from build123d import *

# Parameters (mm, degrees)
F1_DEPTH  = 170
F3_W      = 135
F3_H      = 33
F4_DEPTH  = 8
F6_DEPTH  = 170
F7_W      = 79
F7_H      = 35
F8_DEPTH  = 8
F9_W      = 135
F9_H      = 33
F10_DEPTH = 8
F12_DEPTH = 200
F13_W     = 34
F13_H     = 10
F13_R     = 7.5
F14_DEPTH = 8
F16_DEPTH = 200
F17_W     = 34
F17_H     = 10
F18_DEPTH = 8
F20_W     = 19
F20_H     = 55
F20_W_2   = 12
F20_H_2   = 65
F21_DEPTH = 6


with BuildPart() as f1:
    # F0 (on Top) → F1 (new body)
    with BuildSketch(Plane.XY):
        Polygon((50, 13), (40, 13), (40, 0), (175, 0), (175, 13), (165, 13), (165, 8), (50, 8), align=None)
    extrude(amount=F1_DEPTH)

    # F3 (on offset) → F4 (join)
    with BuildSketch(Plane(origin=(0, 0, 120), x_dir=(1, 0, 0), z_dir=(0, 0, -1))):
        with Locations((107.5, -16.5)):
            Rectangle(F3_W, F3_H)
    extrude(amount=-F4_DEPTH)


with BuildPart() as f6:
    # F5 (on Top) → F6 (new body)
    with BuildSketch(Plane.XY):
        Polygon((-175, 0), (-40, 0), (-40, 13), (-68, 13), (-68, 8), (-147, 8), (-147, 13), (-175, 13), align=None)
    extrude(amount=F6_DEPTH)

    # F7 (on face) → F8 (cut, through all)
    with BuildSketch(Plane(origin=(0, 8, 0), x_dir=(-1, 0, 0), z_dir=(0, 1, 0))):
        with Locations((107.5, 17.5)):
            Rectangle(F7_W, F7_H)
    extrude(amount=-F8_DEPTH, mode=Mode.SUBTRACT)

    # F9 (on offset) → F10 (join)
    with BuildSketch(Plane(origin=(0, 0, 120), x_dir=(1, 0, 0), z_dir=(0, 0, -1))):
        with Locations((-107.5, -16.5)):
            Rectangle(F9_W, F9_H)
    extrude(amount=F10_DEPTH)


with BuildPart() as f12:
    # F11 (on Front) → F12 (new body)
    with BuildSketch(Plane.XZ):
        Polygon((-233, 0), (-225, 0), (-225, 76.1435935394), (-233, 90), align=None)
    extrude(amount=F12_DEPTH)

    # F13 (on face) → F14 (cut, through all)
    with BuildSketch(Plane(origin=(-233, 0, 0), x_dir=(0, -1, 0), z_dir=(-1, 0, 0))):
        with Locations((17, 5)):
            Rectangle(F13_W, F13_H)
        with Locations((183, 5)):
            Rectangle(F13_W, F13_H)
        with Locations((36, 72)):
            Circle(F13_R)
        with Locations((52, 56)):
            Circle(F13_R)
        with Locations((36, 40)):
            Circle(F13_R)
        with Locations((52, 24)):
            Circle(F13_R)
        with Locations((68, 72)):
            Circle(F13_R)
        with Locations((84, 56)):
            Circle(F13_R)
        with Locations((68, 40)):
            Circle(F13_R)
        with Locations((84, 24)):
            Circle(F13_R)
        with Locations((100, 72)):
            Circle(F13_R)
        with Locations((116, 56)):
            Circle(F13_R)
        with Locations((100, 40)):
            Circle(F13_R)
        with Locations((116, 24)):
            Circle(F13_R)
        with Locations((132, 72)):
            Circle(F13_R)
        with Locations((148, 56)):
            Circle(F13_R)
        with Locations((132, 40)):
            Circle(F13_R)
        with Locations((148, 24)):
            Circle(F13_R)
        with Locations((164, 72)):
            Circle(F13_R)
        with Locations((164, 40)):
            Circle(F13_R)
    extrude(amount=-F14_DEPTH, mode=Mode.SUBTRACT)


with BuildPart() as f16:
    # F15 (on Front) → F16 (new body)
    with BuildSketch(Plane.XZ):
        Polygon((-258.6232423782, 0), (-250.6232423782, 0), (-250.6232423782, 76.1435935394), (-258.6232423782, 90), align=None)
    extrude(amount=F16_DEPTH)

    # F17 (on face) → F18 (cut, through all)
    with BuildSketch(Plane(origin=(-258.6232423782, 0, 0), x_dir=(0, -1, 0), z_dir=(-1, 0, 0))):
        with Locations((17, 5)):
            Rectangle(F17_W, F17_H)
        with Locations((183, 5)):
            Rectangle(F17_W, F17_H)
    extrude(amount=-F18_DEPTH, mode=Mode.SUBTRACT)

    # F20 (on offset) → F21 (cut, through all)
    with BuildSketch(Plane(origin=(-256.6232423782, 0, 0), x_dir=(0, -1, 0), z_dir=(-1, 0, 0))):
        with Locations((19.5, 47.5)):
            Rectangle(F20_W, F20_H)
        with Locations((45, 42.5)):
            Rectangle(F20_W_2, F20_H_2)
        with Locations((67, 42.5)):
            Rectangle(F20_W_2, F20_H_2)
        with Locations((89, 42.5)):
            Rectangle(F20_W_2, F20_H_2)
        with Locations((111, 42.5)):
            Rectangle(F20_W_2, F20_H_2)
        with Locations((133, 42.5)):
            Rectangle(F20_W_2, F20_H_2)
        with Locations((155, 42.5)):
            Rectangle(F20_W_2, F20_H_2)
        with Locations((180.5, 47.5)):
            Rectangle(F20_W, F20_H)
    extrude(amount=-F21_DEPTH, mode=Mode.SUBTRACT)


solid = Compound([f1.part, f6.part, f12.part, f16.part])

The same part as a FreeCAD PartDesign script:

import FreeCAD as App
import Part
import Sketcher
Q = App.Units.Quantity


def add_polygon(sketch, points):
    """Adds a closed chain of lines whose ends are joined by coincident constraints."""
    first, n = sketch.GeometryCount, len(points)
    for a, b in zip(points, points[1:] + points[:1]):
        sketch.addGeometry(Part.LineSegment(App.Vector(*a, 0), App.Vector(*b, 0)), False)
    for i in range(n):
        sketch.addConstraint(Sketcher.Constraint("Coincident", first + i, 2, first + (i + 1) % n, 1))

doc = App.newDocument("Part")
body = doc.addObject("PartDesign::Body", "Body")

sketch1 = body.newObject("Sketcher::SketchObject", "Sketch")
sketch1.AttachmentSupport = (doc.getObject("XY_Plane"), [""])
sketch1.MapMode = "FlatFace"
add_polygon(sketch1, [(50, 13), (40, 13), (40, 0), (175, 0), (175, 13), (165, 13), (165, 8), (50, 8)])
sketch1.addConstraint([
    Sketcher.Constraint("Horizontal", 0),
    Sketcher.Constraint("Vertical", 1),
    Sketcher.Constraint("Horizontal", 2),
    Sketcher.Constraint("Vertical", 3),
    Sketcher.Constraint("Horizontal", 4),
    Sketcher.Constraint("Vertical", 5),
    Sketcher.Constraint("Horizontal", 6),
    Sketcher.Constraint("Vertical", 7),
    Sketcher.Constraint("PointOnObject", 1, 2, -1),
    Sketcher.Constraint("Horizontal", 0, 2, 3, 2),
    Sketcher.Constraint("Equal", 0, 4),
    Sketcher.Constraint("DistanceX", 0, 2, 0, 1, 10.0),
    Sketcher.Constraint("DistanceX", 2, 1, 2, 2, 135.0),
    Sketcher.Constraint("DistanceY", 1, 2, 1, 1, 13.0),
    Sketcher.Constraint("DistanceY", 5, 2, 5, 1, 5.0),
    Sketcher.Constraint("DistanceX", -1, 1, 0, 2, 40.0),
])
pad1 = body.newObject("PartDesign::Pad", "Pad")
pad1.Profile = sketch1
pad1.Length = 170

sketch2 = body.newObject("Sketcher::SketchObject", "Sketch001")
sketch2.AttachmentSupport = (doc.getObject("XY_Plane"), [""])
sketch2.MapMode = "FlatFace"
sketch2.AttachmentOffset = App.Placement(App.Vector(0, 0, 120), App.Rotation())
add_polygon(sketch2, [(40, 0), (40, 33), (175, 33), (175, 0)])
sketch2.addConstraint([
    Sketcher.Constraint("Vertical", 0),
    Sketcher.Constraint("Horizontal", 1),
    Sketcher.Constraint("Vertical", 2),
    Sketcher.Constraint("Horizontal", 3),
    Sketcher.Constraint("PointOnObject", 2, 2, -1),
    Sketcher.Constraint("DistanceX", 1, 1, 1, 2, 135.0),
    Sketcher.Constraint("DistanceY", 0, 1, 0, 2, 33.0),
    Sketcher.Constraint("DistanceX", -1, 1, 0, 2, 40.0),
])
pad2 = body.newObject("PartDesign::Pad", "Pad001")
pad2.Profile = sketch2
pad2.Length = 8
body2 = doc.addObject("PartDesign::Body", "Body001")

sketch3 = body2.newObject("Sketcher::SketchObject", "Sketch002")
sketch3.AttachmentSupport = (doc.getObject("XY_Plane001"), [""])
sketch3.MapMode = "FlatFace"
add_polygon(sketch3, [(-175, 0), (-40, 0), (-40, 13), (-68, 13), (-68, 8), (-147, 8), (-147, 13), (-175, 13)])
sketch3.addConstraint([
    Sketcher.Constraint("Horizontal", 0),
    Sketcher.Constraint("Vertical", 1),
    Sketcher.Constraint("Horizontal", 2),
    Sketcher.Constraint("Vertical", 3),
    Sketcher.Constraint("Horizontal", 4),
    Sketcher.Constraint("Vertical", 5),
    Sketcher.Constraint("Horizontal", 6),
    Sketcher.Constraint("Vertical", 7),
    Sketcher.Constraint("PointOnObject", 0, 2, -1),
    Sketcher.Constraint("Horizontal", 2, 2, 5, 2),
    Sketcher.Constraint("Equal", 2, 6),
    Sketcher.Constraint("DistanceX", 0, 1, 0, 2, 135.0),
    Sketcher.Constraint("DistanceX", 2, 2, 2, 1, 28.0),
    Sketcher.Constraint("DistanceY", 1, 1, 1, 2, 13.0),
    Sketcher.Constraint("DistanceY", 3, 2, 3, 1, 5.0),
    Sketcher.Constraint("DistanceX", 0, 2, -1, 1, 40.0),
])
pad3 = body2.newObject("PartDesign::Pad", "Pad002")
pad3.Profile = sketch3
pad3.Length = 170

sketch4 = body2.newObject("Sketcher::SketchObject", "Sketch003")
sketch4.AttachmentSupport = (doc.getObject("XZ_Plane001"), [""])
sketch4.MapMode = "FlatFace"
sketch4.AttachmentOffset = App.Placement(App.Vector(0, 0, -8), App.Rotation())
add_polygon(sketch4, [(-68, 35), (-68, 0), (-147, 0), (-147, 35)])
sketch4.addConstraint([
    Sketcher.Constraint("Vertical", 0),
    Sketcher.Constraint("Horizontal", 1),
    Sketcher.Constraint("Vertical", 2),
    Sketcher.Constraint("Horizontal", 3),
    Sketcher.Constraint("PointOnObject", 0, 2, -1),
    Sketcher.Constraint("DistanceX", 1, 2, 1, 1, 79.0),
    Sketcher.Constraint("DistanceY", 0, 2, 0, 1, 35.0),
    Sketcher.Constraint("DistanceX", 0, 2, -1, 1, 68.0),
])
pocket1 = body2.newObject("PartDesign::Pocket", "Pocket")
pocket1.Profile = sketch4
pocket1.Type = "ThroughAll"
pocket1.Reversed = True

sketch5 = body2.newObject("Sketcher::SketchObject", "Sketch004")
sketch5.AttachmentSupport = (doc.getObject("XY_Plane001"), [""])
sketch5.MapMode = "FlatFace"
sketch5.AttachmentOffset = App.Placement(App.Vector(0, 0, 120), App.Rotation())
add_polygon(sketch5, [(-175, 0), (-175, 33), (-40, 33), (-40, 0)])
sketch5.addConstraint([
    Sketcher.Constraint("Vertical", 0),
    Sketcher.Constraint("Horizontal", 1),
    Sketcher.Constraint("Vertical", 2),
    Sketcher.Constraint("Horizontal", 3),
    Sketcher.Constraint("PointOnObject", 2, 2, -1),
    Sketcher.Constraint("DistanceX", 1, 1, 1, 2, 135.0),
    Sketcher.Constraint("DistanceY", 0, 1, 0, 2, 33.0),
    Sketcher.Constraint("DistanceX", 0, 2, -1, 1, 175.0),
])
pad4 = body2.newObject("PartDesign::Pad", "Pad003")
pad4.Profile = sketch5
pad4.Length = 8
pad4.Reversed = True
body3 = doc.addObject("PartDesign::Body", "Body002")

sketch6 = body3.newObject("Sketcher::SketchObject", "Sketch005")
sketch6.AttachmentSupport = (doc.getObject("XZ_Plane002"), [""])
sketch6.MapMode = "FlatFace"
add_polygon(sketch6, [(-233, 0), (-225, 0), (-225, 76), (-233, 90)])
sketch6.addConstraint([
    Sketcher.Constraint("Horizontal", 0),
    Sketcher.Constraint("Vertical", 1),
    Sketcher.Constraint("Vertical", 3),
    Sketcher.Constraint("PointOnObject", 0, 2, -1),
    Sketcher.Constraint("DistanceX", 0, 1, 0, 2, 8.0),
    Sketcher.Constraint("DistanceY", 3, 2, 3, 1, 90.0),
    Sketcher.Constraint("Angle", 2, Q("120 deg")),
    Sketcher.Constraint("DistanceX", 0, 2, -1, 1, 225.0),
])
pad5 = body3.newObject("PartDesign::Pad", "Pad004")
pad5.Profile = sketch6
pad5.Length = 200

sketch7 = body3.newObject("Sketcher::SketchObject", "Sketch006")
sketch7.AttachmentSupport = (doc.getObject("YZ_Plane002"), [""])
sketch7.MapMode = "FlatFace"
sketch7.AttachmentOffset = App.Placement(App.Vector(0, 0, -233), App.Rotation())
add_polygon(sketch7, [(0, 10), (0, 0), (-34, 0), (-34, 10)])
add_polygon(sketch7, [(-166, 10), (-166, 0), (-200, 0), (-200, 10)])
sketch7.addGeometry(Part.Circle(App.Vector(-36, 72, 0), App.Vector(0, 0, 1), 8), False)
sketch7.addGeometry(Part.Circle(App.Vector(-52, 56, 0), App.Vector(0, 0, 1), 8), False)
sketch7.addGeometry(Part.Circle(App.Vector(-36, 40, 0), App.Vector(0, 0, 1), 8), False)
sketch7.addGeometry(Part.Circle(App.Vector(-52, 24, 0), App.Vector(0, 0, 1), 8), False)
sketch7.addGeometry(Part.Circle(App.Vector(-68, 72, 0), App.Vector(0, 0, 1), 8), False)
sketch7.addGeometry(Part.Circle(App.Vector(-84, 56, 0), App.Vector(0, 0, 1), 8), False)
sketch7.addGeometry(Part.Circle(App.Vector(-68, 40, 0), App.Vector(0, 0, 1), 8), False)
sketch7.addGeometry(Part.Circle(App.Vector(-84, 24, 0), App.Vector(0, 0, 1), 8), False)
sketch7.addGeometry(Part.Circle(App.Vector(-100, 72, 0), App.Vector(0, 0, 1), 8), False)
sketch7.addGeometry(Part.Circle(App.Vector(-116, 56, 0), App.Vector(0, 0, 1), 8), False)
sketch7.addGeometry(Part.Circle(App.Vector(-100, 40, 0), App.Vector(0, 0, 1), 8), False)
sketch7.addGeometry(Part.Circle(App.Vector(-116, 24, 0), App.Vector(0, 0, 1), 8), False)
sketch7.addGeometry(Part.Circle(App.Vector(-132, 72, 0), App.Vector(0, 0, 1), 8), False)
sketch7.addGeometry(Part.Circle(App.Vector(-148, 56, 0), App.Vector(0, 0, 1), 8), False)
sketch7.addGeometry(Part.Circle(App.Vector(-132, 40, 0), App.Vector(0, 0, 1), 8), False)
sketch7.addGeometry(Part.Circle(App.Vector(-148, 24, 0), App.Vector(0, 0, 1), 8), False)
sketch7.addGeometry(Part.Circle(App.Vector(-164, 72, 0), App.Vector(0, 0, 1), 8), False)
sketch7.addGeometry(Part.Circle(App.Vector(-164, 40, 0), App.Vector(0, 0, 1), 8), False)
sketch7.addConstraint([
    Sketcher.Constraint("Vertical", 0),
    Sketcher.Constraint("Horizontal", 1),
    Sketcher.Constraint("Vertical", 2),
    Sketcher.Constraint("Horizontal", 3),
    Sketcher.Constraint("Vertical", 4),
    Sketcher.Constraint("Horizontal", 5),
    Sketcher.Constraint("Vertical", 6),
    Sketcher.Constraint("Horizontal", 7),
    Sketcher.Constraint("Coincident", 0, 2, -1, 1),
    Sketcher.Constraint("Equal", 8, 9),
    Sketcher.Constraint("Equal", 9, 10),
    Sketcher.Constraint("Equal", 10, 11),
    Sketcher.Constraint("Equal", 11, 12),
    Sketcher.Constraint("Equal", 12, 13),
    Sketcher.Constraint("Equal", 13, 14),
    Sketcher.Constraint("Equal", 14, 15),
    Sketcher.Constraint("Equal", 15, 16),
    Sketcher.Constraint("Equal", 16, 17),
    Sketcher.Constraint("Equal", 17, 18),
    Sketcher.Constraint("Equal", 18, 19),
    Sketcher.Constraint("Equal", 19, 20),
    Sketcher.Constraint("Equal", 20, 21),
    Sketcher.Constraint("Equal", 21, 22),
    Sketcher.Constraint("Equal", 22, 23),
    Sketcher.Constraint("Equal", 23, 24),
    Sketcher.Constraint("Equal", 24, 25),
    Sketcher.Constraint("PointOnObject", 4, 2, -1),
    Sketcher.Constraint("Horizontal", 8, 3, 12, 3),
    Sketcher.Constraint("Horizontal", 9, 3, 13, 3),
    Sketcher.Constraint("Horizontal", 10, 3, 14, 3),
    Sketcher.Constraint("Horizontal", 11, 3, 15, 3),
    Sketcher.Constraint("Horizontal", 12, 3, 16, 3),
    Sketcher.Constraint("Horizontal", 13, 3, 17, 3),
    Sketcher.Constraint("Horizontal", 14, 3, 18, 3),
    Sketcher.Constraint("Horizontal", 15, 3, 19, 3),
    Sketcher.Constraint("Horizontal", 16, 3, 20, 3),
    Sketcher.Constraint("Horizontal", 17, 3, 21, 3),
    Sketcher.Constraint("Horizontal", 18, 3, 22, 3),
    Sketcher.Constraint("Horizontal", 19, 3, 23, 3),
    Sketcher.Constraint("Horizontal", 20, 3, 24, 3),
    Sketcher.Constraint("Horizontal", 22, 3, 25, 3),
    Sketcher.Constraint("Horizontal", 3, 2, 6, 2),
    Sketcher.Constraint("Vertical", 8, 3, 10, 3),
    Sketcher.Constraint("Vertical", 9, 3, 11, 3),
    Sketcher.Constraint("Vertical", 12, 3, 14, 3),
    Sketcher.Constraint("Vertical", 13, 3, 15, 3),
    Sketcher.Constraint("Vertical", 16, 3, 18, 3),
    Sketcher.Constraint("Vertical", 17, 3, 19, 3),
    Sketcher.Constraint("Vertical", 20, 3, 22, 3),
    Sketcher.Constraint("Vertical", 21, 3, 23, 3),
    Sketcher.Constraint("Vertical", 24, 3, 25, 3),
    Sketcher.Constraint("Equal", 3, 5),
    Sketcher.Constraint("Diameter", 8, 15.0),
    Sketcher.Constraint("DistanceX", 1, 2, 1, 1, 34.0),
    Sketcher.Constraint("DistanceY", 0, 2, 0, 1, 10.0),
    Sketcher.Constraint("DistanceX", 8, 3, -1, 1, 36.0),
    Sketcher.Constraint("DistanceY", -1, 1, 8, 3, 72.0),
    Sketcher.Constraint("DistanceX", 9, 3, -1, 1, 52.0),
    Sketcher.Constraint("DistanceY", -1, 1, 9, 3, 56.0),
    Sketcher.Constraint("DistanceY", -1, 1, 10, 3, 40.0),
    Sketcher.Constraint("DistanceY", -1, 1, 11, 3, 24.0),
    Sketcher.Constraint("DistanceX", 12, 3, -1, 1, 68.0),
    Sketcher.Constraint("DistanceX", 13, 3, -1, 1, 84.0),
    Sketcher.Constraint("DistanceX", 16, 3, -1, 1, 100.0),
    Sketcher.Constraint("DistanceX", 17, 3, -1, 1, 116.0),
    Sketcher.Constraint("DistanceX", 20, 3, -1, 1, 132.0),
    Sketcher.Constraint("DistanceX", 21, 3, -1, 1, 148.0),
    Sketcher.Constraint("DistanceX", 24, 3, -1, 1, 164.0),
    Sketcher.Constraint("DistanceX", 4, 2, -1, 1, 166.0),
])
pocket2 = body3.newObject("PartDesign::Pocket", "Pocket001")
pocket2.Profile = sketch7
pocket2.Type = "ThroughAll"
pocket2.Reversed = True
body4 = doc.addObject("PartDesign::Body", "Body003")

sketch8 = body4.newObject("Sketcher::SketchObject", "Sketch007")
sketch8.AttachmentSupport = (doc.getObject("XZ_Plane003"), [""])
sketch8.MapMode = "FlatFace"
add_polygon(sketch8, [(-259, 0), (-251, 0), (-251, 76), (-259, 90)])
sketch8.addConstraint([
    Sketcher.Constraint("Horizontal", 0),
    Sketcher.Constraint("Vertical", 1),
    Sketcher.Constraint("Vertical", 3),
    Sketcher.Constraint("PointOnObject", 0, 2, -1),
    Sketcher.Constraint("DistanceX", 0, 1, 0, 2, 8.0),
    Sketcher.Constraint("DistanceY", 3, 2, 3, 1, 90.0),
    Sketcher.Constraint("Angle", 2, Q("120 deg")),
    Sketcher.Constraint("DistanceX", 0, 2, -1, 1, 250.623242),
])
pad6 = body4.newObject("PartDesign::Pad", "Pad005")
pad6.Profile = sketch8
pad6.Length = 200

sketch9 = body4.newObject("Sketcher::SketchObject", "Sketch008")
sketch9.AttachmentSupport = (doc.getObject("YZ_Plane003"), [""])
sketch9.MapMode = "FlatFace"
sketch9.AttachmentOffset = App.Placement(App.Vector(0, 0, -258.623242), App.Rotation())
add_polygon(sketch9, [(0, 10), (0, 0), (-34, 0), (-34, 10)])
add_polygon(sketch9, [(-166, 10), (-166, 0), (-200, 0), (-200, 10)])
sketch9.addConstraint([
    Sketcher.Constraint("Vertical", 0),
    Sketcher.Constraint("Horizontal", 1),
    Sketcher.Constraint("Vertical", 2),
    Sketcher.Constraint("Horizontal", 3),
    Sketcher.Constraint("Vertical", 4),
    Sketcher.Constraint("Horizontal", 5),
    Sketcher.Constraint("Vertical", 6),
    Sketcher.Constraint("Horizontal", 7),
    Sketcher.Constraint("Coincident", 0, 2, -1, 1),
    Sketcher.Constraint("PointOnObject", 4, 2, -1),
    Sketcher.Constraint("Horizontal", 3, 2, 6, 2),
    Sketcher.Constraint("Equal", 3, 5),
    Sketcher.Constraint("DistanceX", 1, 2, 1, 1, 34.0),
    Sketcher.Constraint("DistanceY", 0, 2, 0, 1, 10.0),
    Sketcher.Constraint("DistanceX", 4, 2, -1, 1, 166.0),
])
pocket3 = body4.newObject("PartDesign::Pocket", "Pocket002")
pocket3.Profile = sketch9
pocket3.Type = "ThroughAll"
pocket3.Reversed = True

sketch10 = body4.newObject("Sketcher::SketchObject", "Sketch009")
sketch10.AttachmentSupport = (doc.getObject("YZ_Plane003"), [""])
sketch10.MapMode = "FlatFace"
sketch10.AttachmentOffset = App.Placement(App.Vector(0, 0, -256.623242), App.Rotation())
add_polygon(sketch10, [(-10, 75), (-10, 20), (-29, 20), (-29, 75)])
add_polygon(sketch10, [(-39, 75), (-39, 10), (-51, 10), (-51, 75)])
add_polygon(sketch10, [(-61, 75), (-61, 10), (-73, 10), (-73, 75)])
add_polygon(sketch10, [(-83, 75), (-83, 10), (-95, 10), (-95, 75)])
add_polygon(sketch10, [(-105, 75), (-105, 10), (-117, 10), (-117, 75)])
add_polygon(sketch10, [(-127, 75), (-127, 10), (-139, 10), (-139, 75)])
add_polygon(sketch10, [(-149, 75), (-149, 10), (-161, 10), (-161, 75)])
add_polygon(sketch10, [(-171, 75), (-171, 20), (-190, 20), (-190, 75)])
sketch10.addConstraint([
    Sketcher.Constraint("Vertical", 0),
    Sketcher.Constraint("Horizontal", 1),
    Sketcher.Constraint("Vertical", 2),
    Sketcher.Constraint("Horizontal", 3),
    Sketcher.Constraint("Vertical", 4),
    Sketcher.Constraint("Horizontal", 5),
    Sketcher.Constraint("Vertical", 6),
    Sketcher.Constraint("Horizontal", 7),
    Sketcher.Constraint("Vertical", 8),
    Sketcher.Constraint("Horizontal", 9),
    Sketcher.Constraint("Vertical", 10),
    Sketcher.Constraint("Horizontal", 11),
    Sketcher.Constraint("Vertical", 12),
    Sketcher.Constraint("Horizontal", 13),
    Sketcher.Constraint("Vertical", 14),
    Sketcher.Constraint("Horizontal", 15),
    Sketcher.Constraint("Vertical", 16),
    Sketcher.Constraint("Horizontal", 17),
    Sketcher.Constraint("Vertical", 18),
    Sketcher.Constraint("Horizontal", 19),
    Sketcher.Constraint("Vertical", 20),
    Sketcher.Constraint("Horizontal", 21),
    Sketcher.Constraint("Vertical", 22),
    Sketcher.Constraint("Horizontal", 23),
    Sketcher.Constraint("Vertical", 24),
    Sketcher.Constraint("Horizontal", 25),
    Sketcher.Constraint("Vertical", 26),
    Sketcher.Constraint("Horizontal", 27),
    Sketcher.Constraint("Vertical", 28),
    Sketcher.Constraint("Horizontal", 29),
    Sketcher.Constraint("Vertical", 30),
    Sketcher.Constraint("Horizontal", 31),
    Sketcher.Constraint("Horizontal", 3, 2, 6, 2),
    Sketcher.Constraint("Horizontal", 5, 2, 8, 2),
    Sketcher.Constraint("Horizontal", 7, 2, 10, 2),
    Sketcher.Constraint("Horizontal", 9, 2, 12, 2),
    Sketcher.Constraint("Horizontal", 11, 2, 14, 2),
    Sketcher.Constraint("Horizontal", 13, 2, 16, 2),
    Sketcher.Constraint("Horizontal", 15, 2, 18, 2),
    Sketcher.Constraint("Horizontal", 17, 2, 20, 2),
    Sketcher.Constraint("Horizontal", 19, 2, 22, 2),
    Sketcher.Constraint("Horizontal", 21, 2, 24, 2),
    Sketcher.Constraint("Horizontal", 23, 2, 26, 2),
    Sketcher.Constraint("Horizontal", 1, 2, 28, 2),
    Sketcher.Constraint("Horizontal", 27, 2, 30, 2),
    Sketcher.Constraint("Equal", 7, 9),
    Sketcher.Constraint("Equal", 11, 13),
    Sketcher.Constraint("Equal", 15, 17),
    Sketcher.Constraint("Equal", 19, 21),
    Sketcher.Constraint("Equal", 23, 25),
    Sketcher.Constraint("Equal", 3, 29),
    Sketcher.Constraint("DistanceX", 1, 2, 1, 1, 19.0),
    Sketcher.Constraint("DistanceX", 5, 2, 5, 1, 12.0),
    Sketcher.Constraint("DistanceY", 0, 2, 0, 1, 55.0),
    Sketcher.Constraint("DistanceY", 4, 2, 4, 1, 65.0),
    Sketcher.Constraint("DistanceX", 0, 2, -1, 1, 10.0),
    Sketcher.Constraint("DistanceY", -1, 1, 0, 2, 20.0),
    Sketcher.Constraint("DistanceX", 4, 2, -1, 1, 39.0),
    Sketcher.Constraint("DistanceX", 8, 2, -1, 1, 61.0),
    Sketcher.Constraint("DistanceX", 12, 2, -1, 1, 83.0),
    Sketcher.Constraint("DistanceX", 16, 2, -1, 1, 105.0),
    Sketcher.Constraint("DistanceX", 20, 2, -1, 1, 127.0),
    Sketcher.Constraint("DistanceX", 24, 2, -1, 1, 149.0),
    Sketcher.Constraint("DistanceX", 28, 2, -1, 1, 171.0),
])
pocket4 = body4.newObject("PartDesign::Pocket", "Pocket003")
pocket4.Profile = sketch10
pocket4.Type = "ThroughAll"
pocket4.Reversed = True

doc.recompute()
